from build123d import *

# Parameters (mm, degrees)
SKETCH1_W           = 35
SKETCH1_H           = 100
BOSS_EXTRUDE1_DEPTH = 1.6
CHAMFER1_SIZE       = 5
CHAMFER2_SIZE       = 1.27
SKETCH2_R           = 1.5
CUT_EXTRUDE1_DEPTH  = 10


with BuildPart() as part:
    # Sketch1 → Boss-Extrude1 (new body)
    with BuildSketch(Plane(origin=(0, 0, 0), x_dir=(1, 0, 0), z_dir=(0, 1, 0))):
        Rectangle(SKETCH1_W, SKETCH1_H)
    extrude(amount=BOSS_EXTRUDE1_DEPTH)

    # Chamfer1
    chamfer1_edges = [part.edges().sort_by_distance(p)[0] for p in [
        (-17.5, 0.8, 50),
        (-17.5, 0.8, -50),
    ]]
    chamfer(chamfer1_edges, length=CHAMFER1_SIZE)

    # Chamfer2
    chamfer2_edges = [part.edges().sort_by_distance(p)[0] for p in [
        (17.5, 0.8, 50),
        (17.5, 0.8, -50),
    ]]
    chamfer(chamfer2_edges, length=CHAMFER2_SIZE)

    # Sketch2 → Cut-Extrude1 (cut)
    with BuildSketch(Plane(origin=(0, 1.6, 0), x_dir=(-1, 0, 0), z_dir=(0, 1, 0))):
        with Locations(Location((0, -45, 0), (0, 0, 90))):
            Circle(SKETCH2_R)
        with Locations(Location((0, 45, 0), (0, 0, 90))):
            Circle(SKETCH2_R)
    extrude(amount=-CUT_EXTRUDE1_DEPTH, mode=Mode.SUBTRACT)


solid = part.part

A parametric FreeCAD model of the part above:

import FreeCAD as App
import Part
import Sketcher


def edges_at(feature, points):
    """Names of the edges that pass closest to the given points."""
    edges = feature.Shape.Edges
    near = lambda p: min(range(len(edges)), key=lambda i: edges[i].distToShape(Part.Vertex(*p))[0])
    return sorted({f"Edge{near(p) + 1}" for p in points})

doc = App.newDocument("Part")
body = doc.addObject("PartDesign::Body", "Body")

# Sketch on XZ plane
sketch1 = body.newObject("Sketcher::SketchObject", "Sketch")
sketch1.AttachmentSupport = (doc.getObject("XZ_Plane"), [""])
sketch1.MapMode = "FlatFace"
sketch1.addGeometry([
    Part.LineSegment(App.Vector(-18, -50, 0), App.Vector(-18, 50, 0)),
    Part.LineSegment(App.Vector(-18, 50, 0), App.Vector(18, 50, 0)),
    Part.LineSegment(App.Vector(18, 50, 0), App.Vector(18, -50, 0)),
    Part.LineSegment(App.Vector(18, -50, 0), App.Vector(-18, -50, 0)),
], False)
sketch1.addConstraint([
    Sketcher.Constraint("Coincident", 0, 2, 1, 1),
    Sketcher.Constraint("Coincident", 1, 2, 2, 1),
    Sketcher.Constraint("Coincident", 2, 2, 3, 1),
    Sketcher.Constraint("Coincident", 3, 2, 0, 1),
    Sketcher.Constraint("Vertical", 0),
    Sketcher.Constraint("Horizontal", 1),
    Sketcher.Constraint("Vertical", 2),
    Sketcher.Constraint("Horizontal", 3),
    Sketcher.Constraint("Symmetric", 0, 2, 2, 2, -1, 1),
    Sketcher.Constraint("DistanceX", 1, 1, 1, 2, 35.0),
    Sketcher.Constraint("DistanceY", 0, 1, 0, 2, 100.0),
])
pad1 = body.newObject("PartDesign::Pad", "Pad")
pad1.Profile = sketch1
pad1.Length = 1.6
pad1.Reversed = True
doc.recompute()

chamfer = body.newObject("PartDesign::Chamfer", "Chamfer")
chamfer.Base = (pad1, edges_at(pad1, [(-17.5, 0.8, 50), (-17.5, 0.8, -50)]))
chamfer.Size = 5
doc.recompute()

chamfer2 = body.newObject("PartDesign::Chamfer", "Chamfer001")
chamfer2.Base = (chamfer, edges_at(chamfer, [(17.5, 0.8, 50), (17.5, 0.8, -50)]))
chamfer2.Size = 1.27

# Sketch on XZ plane
sketch2 = body.newObject("Sketcher::SketchObject", "Sketch001")
sketch2.AttachmentSupport = (doc.getObject("XZ_Plane"), [""])
sketch2.MapMode = "FlatFace"
sketch2.AttachmentOffset = App.Placement(App.Vector(0, 0, -1.6), App.Rotation())
sketch2.addGeometry([
    Part.Circle(App.Vector(0, -45, 0), App.Vector(0, 0, 1), 1.5),
    Part.Circle(App.Vector(0, 45, 0), App.Vector(0, 0, 1), 1.5),
], False)
sketch2.addConstraint([
    Sketcher.Constraint("Equal", 0, 1),
    Sketcher.Constraint("Symmetric", 0, 3, 1, 3, -1, 1),
    Sketcher.Constraint("PointOnObject", 0, 3, -2),
    Sketcher.Constraint("Diameter", 0, 3.0),
    Sketcher.Constraint("DistanceY", 0, 3, -1, 1, 45.0),
])
pocket1 = body.newObject("PartDesign::Pocket", "Pocket")
pocket1.Profile = sketch2
pocket1.Length = 10
pocket1.Reversed = True

doc.recompute()
